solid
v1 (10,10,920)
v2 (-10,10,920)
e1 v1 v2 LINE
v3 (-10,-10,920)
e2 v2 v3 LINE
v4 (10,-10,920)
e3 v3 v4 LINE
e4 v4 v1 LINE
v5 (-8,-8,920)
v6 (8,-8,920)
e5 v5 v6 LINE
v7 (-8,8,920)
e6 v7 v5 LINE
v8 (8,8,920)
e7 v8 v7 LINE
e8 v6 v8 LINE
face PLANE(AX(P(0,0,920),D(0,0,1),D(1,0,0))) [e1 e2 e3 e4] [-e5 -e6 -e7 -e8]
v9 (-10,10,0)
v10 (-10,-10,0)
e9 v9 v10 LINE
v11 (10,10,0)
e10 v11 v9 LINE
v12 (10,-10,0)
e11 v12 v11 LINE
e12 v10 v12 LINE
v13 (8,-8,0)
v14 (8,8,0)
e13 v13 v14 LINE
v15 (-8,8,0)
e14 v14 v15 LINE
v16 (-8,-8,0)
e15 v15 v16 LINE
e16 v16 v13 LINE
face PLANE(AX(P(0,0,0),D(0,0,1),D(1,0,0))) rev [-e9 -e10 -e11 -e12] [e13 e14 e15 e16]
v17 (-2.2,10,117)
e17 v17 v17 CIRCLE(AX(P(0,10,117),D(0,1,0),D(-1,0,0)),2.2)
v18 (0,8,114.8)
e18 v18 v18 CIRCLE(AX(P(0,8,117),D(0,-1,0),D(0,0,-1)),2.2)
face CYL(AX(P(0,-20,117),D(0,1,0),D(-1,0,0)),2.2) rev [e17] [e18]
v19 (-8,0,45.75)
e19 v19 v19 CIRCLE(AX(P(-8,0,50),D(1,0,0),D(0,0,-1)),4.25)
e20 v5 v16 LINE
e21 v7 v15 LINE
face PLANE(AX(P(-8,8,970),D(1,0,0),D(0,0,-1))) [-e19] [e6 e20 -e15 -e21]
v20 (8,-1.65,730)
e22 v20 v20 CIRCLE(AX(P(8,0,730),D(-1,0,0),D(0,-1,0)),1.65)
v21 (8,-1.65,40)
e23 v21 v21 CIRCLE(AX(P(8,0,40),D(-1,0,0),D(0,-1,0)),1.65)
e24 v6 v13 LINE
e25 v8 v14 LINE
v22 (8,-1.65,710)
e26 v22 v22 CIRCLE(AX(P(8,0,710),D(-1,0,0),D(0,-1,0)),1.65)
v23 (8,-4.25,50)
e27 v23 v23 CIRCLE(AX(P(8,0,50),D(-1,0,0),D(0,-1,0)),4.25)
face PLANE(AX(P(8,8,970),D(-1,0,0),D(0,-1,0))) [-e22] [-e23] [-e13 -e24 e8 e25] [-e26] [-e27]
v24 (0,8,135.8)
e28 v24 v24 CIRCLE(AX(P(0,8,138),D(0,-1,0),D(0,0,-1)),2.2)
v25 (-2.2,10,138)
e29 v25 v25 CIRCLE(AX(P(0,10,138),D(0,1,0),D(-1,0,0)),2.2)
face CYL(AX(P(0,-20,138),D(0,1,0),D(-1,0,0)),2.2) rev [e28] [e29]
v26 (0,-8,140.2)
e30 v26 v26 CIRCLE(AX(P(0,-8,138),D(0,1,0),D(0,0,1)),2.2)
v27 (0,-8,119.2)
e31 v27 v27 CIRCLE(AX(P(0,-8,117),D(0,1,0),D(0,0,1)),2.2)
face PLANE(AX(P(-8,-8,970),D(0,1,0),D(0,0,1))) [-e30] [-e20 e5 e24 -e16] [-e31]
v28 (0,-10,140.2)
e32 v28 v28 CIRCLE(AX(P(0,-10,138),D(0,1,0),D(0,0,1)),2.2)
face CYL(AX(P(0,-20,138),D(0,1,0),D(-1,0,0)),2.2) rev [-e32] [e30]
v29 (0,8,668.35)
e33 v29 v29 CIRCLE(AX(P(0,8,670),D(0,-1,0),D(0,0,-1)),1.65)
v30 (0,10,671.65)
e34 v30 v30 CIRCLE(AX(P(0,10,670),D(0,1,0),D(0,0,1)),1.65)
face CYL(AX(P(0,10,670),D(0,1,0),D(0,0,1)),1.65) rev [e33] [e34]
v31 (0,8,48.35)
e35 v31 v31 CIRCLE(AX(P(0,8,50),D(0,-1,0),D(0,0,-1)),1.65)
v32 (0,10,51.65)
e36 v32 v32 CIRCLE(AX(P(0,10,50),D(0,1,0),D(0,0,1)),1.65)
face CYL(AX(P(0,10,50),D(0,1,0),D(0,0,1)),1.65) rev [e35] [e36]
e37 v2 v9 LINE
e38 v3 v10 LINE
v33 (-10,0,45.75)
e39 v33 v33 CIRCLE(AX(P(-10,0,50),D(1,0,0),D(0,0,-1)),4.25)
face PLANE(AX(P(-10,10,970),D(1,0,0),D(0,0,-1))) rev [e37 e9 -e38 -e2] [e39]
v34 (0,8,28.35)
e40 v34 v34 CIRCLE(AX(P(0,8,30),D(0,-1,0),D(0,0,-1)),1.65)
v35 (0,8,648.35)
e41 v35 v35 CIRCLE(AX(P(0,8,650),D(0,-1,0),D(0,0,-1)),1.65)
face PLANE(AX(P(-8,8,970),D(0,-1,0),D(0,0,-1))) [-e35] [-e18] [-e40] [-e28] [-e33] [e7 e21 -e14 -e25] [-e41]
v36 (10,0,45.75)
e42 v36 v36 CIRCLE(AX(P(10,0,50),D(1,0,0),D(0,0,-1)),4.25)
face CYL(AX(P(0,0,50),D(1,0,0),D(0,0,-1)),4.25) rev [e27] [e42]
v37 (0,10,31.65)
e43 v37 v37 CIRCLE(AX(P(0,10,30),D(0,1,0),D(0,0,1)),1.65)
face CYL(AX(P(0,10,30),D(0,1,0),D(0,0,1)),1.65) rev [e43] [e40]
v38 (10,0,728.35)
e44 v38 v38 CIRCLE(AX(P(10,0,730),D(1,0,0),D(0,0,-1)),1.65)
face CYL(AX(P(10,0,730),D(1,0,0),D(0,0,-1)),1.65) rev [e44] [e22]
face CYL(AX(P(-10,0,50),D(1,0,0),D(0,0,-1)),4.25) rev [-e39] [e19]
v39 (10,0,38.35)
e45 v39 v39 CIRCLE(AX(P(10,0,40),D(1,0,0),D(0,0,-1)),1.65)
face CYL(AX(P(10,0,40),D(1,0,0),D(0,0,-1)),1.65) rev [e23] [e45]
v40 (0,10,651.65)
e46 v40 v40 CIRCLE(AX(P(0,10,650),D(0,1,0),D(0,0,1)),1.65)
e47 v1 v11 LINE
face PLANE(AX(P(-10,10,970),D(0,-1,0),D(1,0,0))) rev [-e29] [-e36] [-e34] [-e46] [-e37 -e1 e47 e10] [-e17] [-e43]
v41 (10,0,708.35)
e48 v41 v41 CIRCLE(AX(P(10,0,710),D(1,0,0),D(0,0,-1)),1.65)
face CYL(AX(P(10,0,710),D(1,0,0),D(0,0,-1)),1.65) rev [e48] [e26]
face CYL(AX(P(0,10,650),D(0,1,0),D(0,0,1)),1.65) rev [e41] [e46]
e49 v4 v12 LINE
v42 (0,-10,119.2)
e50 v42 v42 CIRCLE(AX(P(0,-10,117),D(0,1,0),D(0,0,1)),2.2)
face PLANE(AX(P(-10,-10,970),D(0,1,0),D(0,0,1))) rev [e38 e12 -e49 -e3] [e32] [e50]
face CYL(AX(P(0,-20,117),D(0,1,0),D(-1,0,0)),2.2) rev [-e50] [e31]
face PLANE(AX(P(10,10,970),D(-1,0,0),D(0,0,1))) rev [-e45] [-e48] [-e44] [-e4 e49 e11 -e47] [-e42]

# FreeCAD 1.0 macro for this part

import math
import FreeCAD as App
import Part
import Sketcher

doc = App.newDocument("Part")
params = doc.addObject("Spreadsheet::Sheet", "Params")
for row, (alias, value) in enumerate([
    ("sketch1_width", "20 mm"),
    ("sketch1_width2", "16 mm"),
    ("pad1_length", "970 mm"),
    ("sketch2_diameter", "2 mm"),
    ("sketch2_diameter2", "8.5 mm"),
    ("pocket1_length", "10 mm"),
    ("sketch3_radius", "1 mm"),
    ("pocket2_length", "10 mm"),
    ("sketch4_diameter", "4.4 mm"),
    ("pocket3_length", "30 mm"),
    ("pocket4_length", "50 mm"),
    ("sketch6_diameter", "3.3 mm"),
    ("hole_diameter", "3.3 mm"),
    ("hole_depth", "11.5 mm"),
    ("sketch7_diameter", "2 mm"),
    ("pocket5_length", "10 mm"),
    ("sketch8_diameter", "3.3 mm"),
    ("hole2_diameter", "3.3 mm"),
    ("hole2_depth", "11.5 mm"),
    ("sketch9_diameter", "8.5 mm"),
    ("sketch10_diameter", "3.3 mm"),
    ("hole3_diameter", "3.3 mm"),
    ("hole3_depth", "11.5 mm"),
], start=1):
    params.set(f"A{row}", alias)
    params.set(f"B{row}", "=" + value)
    params.setAlias(f"B{row}", alias)

body = doc.addObject("PartDesign::Body", "Body")

# Sketch on XY plane
sketch1 = doc.addObject("Sketcher::SketchObject", "Sketch")
body.addObject(sketch1)
sketch1.AttachmentSupport = (doc.XY_Plane, [""])
sketch1.MapMode = "FlatFace"
sketch1.addGeometry([
    Part.LineSegment(App.Vector(-10, 10, 0), App.Vector(-10, -10, 0)),  # 0
    Part.LineSegment(App.Vector(-10, -10, 0), App.Vector(10, -10, 0)),  # 1
    Part.LineSegment(App.Vector(10, -10, 0), App.Vector(10, 10, 0)),  # 2
    Part.LineSegment(App.Vector(10, 10, 0), App.Vector(-10, 10, 0)),  # 3
    Part.LineSegment(App.Vector(8, -8, 0), App.Vector(-8, -8, 0)),  # 4
    Part.LineSegment(App.Vector(-8, -8, 0), App.Vector(-8, 8, 0)),  # 5
    Part.LineSegment(App.Vector(-8, 8, 0), App.Vector(8, 8, 0)),  # 6
    Part.LineSegment(App.Vector(8, 8, 0), App.Vector(8, -8, 0)),  # 7
], False)
sketch1.addConstraint([
    Sketcher.Constraint("Coincident", 0, 2, 1, 1),
    Sketcher.Constraint("Coincident", 1, 2, 2, 1),
    Sketcher.Constraint("Coincident", 2, 2, 3, 1),
    Sketcher.Constraint("Coincident", 3, 2, 0, 1),
    Sketcher.Constraint("Coincident", 4, 2, 5, 1),
    Sketcher.Constraint("Coincident", 5, 2, 6, 1),
    Sketcher.Constraint("Coincident", 6, 2, 7, 1),
    Sketcher.Constraint("Coincident", 7, 2, 4, 1),
    Sketcher.Constraint("Vertical", 0),
    Sketcher.Constraint("Horizontal", 1),
    Sketcher.Constraint("Vertical", 2),
    Sketcher.Constraint("Horizontal", 3),
    Sketcher.Constraint("Horizontal", 4),
    Sketcher.Constraint("Vertical", 5),
    Sketcher.Constraint("Horizontal", 6),
    Sketcher.Constraint("Vertical", 7),
    Sketcher.Constraint("Symmetric", 0, 2, 2, 2, -1, 1),
    Sketcher.Constraint("Symmetric", 4, 2, 6, 2, -1, 1),
    Sketcher.Constraint("Equal", 3, 0),
    Sketcher.Constraint("Equal", 6, 5),
    Sketcher.Constraint("DistanceX", 1, 1, 1, 2, 20.0),
    Sketcher.Constraint("DistanceX", 4, 2, 4, 1, 16.0),
])
sketch1.setExpression("Constraints[20]", "Params.sketch1_width")
sketch1.setExpression("Constraints[21]", "Params.sketch1_width2")
pad1 = doc.addObject("PartDesign::Pad", "Pad")
body.addObject(pad1)
pad1.Profile = sketch1
pad1.setExpression("Length", "Params.pad1_length")

# Sketch on YZ plane
sketch2 = doc.addObject("Sketcher::SketchObject", "Sketch001")
body.addObject(sketch2)
sketch2.AttachmentSupport = (doc.YZ_Plane, [""])
sketch2.MapMode = "FlatFace"
sketch2.AttachmentOffset = App.Placement(App.Vector(0, 0, 10), App.Rotation())
sketch2.addGeometry([
    Part.Circle(App.Vector(0, 710, 0), App.Vector(0, 0, 1), 1),
    Part.Circle(App.Vector(0, 50, 0), App.Vector(0, 0, 1), 4.2),
    Part.Circle(App.Vector(0, 40, 0), App.Vector(0, 0, 1), 1),
    Part.Circle(App.Vector(0, 730, 0), App.Vector(0, 0, 1), 1),
], False)
sketch2.addConstraint([
    Sketcher.Constraint("Equal", 0, 2),
    Sketcher.Constraint("Equal", 2, 3),
    Sketcher.Constraint("PointOnObject", 0, 3, -2),
    Sketcher.Constraint("PointOnObject", 1, 3, -2),
    Sketcher.Constraint("PointOnObject", 2, 3, -2),
    Sketcher.Constraint("PointOnObject", 3, 3, -2),
    Sketcher.Constraint("Diameter", 0, 2.0),
    Sketcher.Constraint("Diameter", 1, 8.5),
    Sketcher.Constraint("DistanceY", -1, 1, 0, 3, 710.0),
    Sketcher.Constraint("DistanceY", -1, 1, 1, 3, 50.0),
    Sketcher.Constraint("DistanceY", -1, 1, 2, 3, 40.0),
    Sketcher.Constraint("DistanceY", -1, 1, 3, 3, 730.0),
])
sketch2.setExpression("Constraints[6]", "Params.sketch2_diameter")
sketch2.setExpression("Constraints[7]", "Params.sketch2_diameter2")
pocket1 = doc.addObject("PartDesign::Pocket", "Pocket")
body.addObject(pocket1)
pocket1.Profile = sketch2
pocket1.setExpression("Length", "Params.pocket1_length")

# Sketch on XZ plane
sketch3 = doc.addObject("Sketcher::SketchObject", "Sketch002")
body.addObject(sketch3)
sketch3.AttachmentSupport = (doc.XZ_Plane, [""])
sketch3.MapMode = "FlatFace"
sketch3.AttachmentOffset = App.Placement(App.Vector(0, 0, -10), App.Rotation())
sketch3.addGeometry([
    Part.ArcOfCircle(Part.Circle(App.Vector(0, 650, 0), App.Vector(0, 0, 1), 1), math.radians(90), math.radians(270)),  # 0
    Part.ArcOfCircle(Part.Circle(App.Vector(0, 650, 0), App.Vector(0, 0, 1), 1), math.radians(0), math.radians(90)),  # 1
    Part.ArcOfCircle(Part.Circle(App.Vector(0, 650, 0), App.Vector(0, 0, 1), 1), math.radians(-90), math.radians(0)),  # 2
    Part.ArcOfCircle(Part.Circle(App.Vector(0, 670, 0), App.Vector(0, 0, 1), 1), math.radians(90), math.radians(270)),  # 3
    Part.ArcOfCircle(Part.Circle(App.Vector(0, 670, 0), App.Vector(0, 0, 1), 1), math.radians(0), math.radians(90)),  # 4
    Part.ArcOfCircle(Part.Circle(App.Vector(0, 670, 0), App.Vector(0, 0, 1), 1), math.radians(-90), math.radians(0)),  # 5
], False)
sketch3.addConstraint([
    Sketcher.Constraint("Tangent", 0, 1, 1, 2),
    Sketcher.Constraint("Tangent", 1, 1, 2, 2),
    Sketcher.Constraint("Tangent", 2, 1, 0, 2),
    Sketcher.Constraint("Tangent", 3, 1, 4, 2),
    Sketcher.Constraint("Tangent", 4, 1, 5, 2),
    Sketcher.Constraint("Tangent", 5, 1, 3, 2),
    Sketcher.Constraint("Equal", 2, 3),
    Sketcher.Constraint("PointOnObject", 0, 3, -2),
    Sketcher.Constraint("PointOnObject", 3, 3, -2),
    Sketcher.Constraint("PointOnObject", 0, 1, -2),
    Sketcher.Constraint("PointOnObject", 2, 1, -2),
    Sketcher.Constraint("PointOnObject", 3, 1, -2),
    Sketcher.Constraint("PointOnObject", 5, 1, -2),
    Sketcher.Constraint("Horizontal", 2, 3, 1, 1),
    Sketcher.Constraint("Horizontal", 5, 3, 4, 1),
    Sketcher.Constraint("Radius", 0, 1.0),
    Sketcher.Constraint("DistanceY", -1, 1, 0, 3, 650.0),
    Sketcher.Constraint("DistanceY", -1, 1, 3, 3, 670.0),
])
sketch3.setExpression("Constraints[15]", "Params.sketch3_radius")
pocket2 = doc.addObject("PartDesign::Pocket", "Pocket001")
body.addObject(pocket2)
pocket2.Profile = sketch3
pocket2.setExpression("Length", "Params.pocket2_length")
pocket2.Reversed = True

# Sketch on XZ plane
sketch4 = doc.addObject("Sketcher::SketchObject", "Sketch003")
body.addObject(sketch4)
sketch4.AttachmentSupport = (doc.XZ_Plane, [""])
sketch4.MapMode = "FlatFace"
sketch4.AttachmentOffset = App.Placement(App.Vector(0, 0, -10), App.Rotation())
sketch4.addGeometry([
    Part.Circle(App.Vector(0, 117, 0), App.Vector(0, 0, 1), 2.2),
    Part.Circle(App.Vector(0, 138, 0), App.Vector(0, 0, 1), 2.2),
], False)
sketch4.addConstraint([
    Sketcher.Constraint("Equal", 0, 1),
    Sketcher.Constraint("PointOnObject", 0, 3, -2),
    Sketcher.Constraint("PointOnObject", 1, 3, -2),
    Sketcher.Constraint("Diameter", 0, 4.4),
    Sketcher.Constraint("DistanceY", -1, 1, 0, 3, 117.0),
    Sketcher.Constraint("DistanceY", -1, 1, 1, 3, 138.0),
])
sketch4.setExpression("Constraints[3]", "Params.sketch4_diameter")
pocket3 = doc.addObject("PartDesign::Pocket", "Pocket002")
body.addObject(pocket3)
pocket3.Profile = sketch4
pocket3.setExpression("Length", "Params.pocket3_length")
pocket3.Reversed = True

# Sketch on XY plane
sketch5 = doc.addObject("Sketcher::SketchObject", "Sketch004")
body.addObject(sketch5)
sketch5.AttachmentSupport = (doc.XY_Plane, [""])
sketch5.MapMode = "FlatFace"
sketch5.AttachmentOffset = App.Placement(App.Vector(0, 0, 970), App.Rotation())
sketch5.addGeometry([
    Part.LineSegment(App.Vector(-14, 11, 0), App.Vector(-14, -11, 0)),
    Part.LineSegment(App.Vector(-14, -11, 0), App.Vector(14, -11, 0)),
    Part.LineSegment(App.Vector(14, -11, 0), App.Vector(14, 11, 0)),
    Part.LineSegment(App.Vector(14, 11, 0), App.Vector(-14, 11, 0)),
], False)
sketch5.addConstraint([
    Sketcher.Constraint("Coincident", 0, 2, 1, 1),
    Sketcher.Constraint("Coincident", 1, 2, 2, 1),
    Sketcher.Constraint("Coincident", 2, 2, 3, 1),
    Sketcher.Constraint("Coincident", 3, 2, 0, 1),
    Sketcher.Constraint("Vertical", 0),
    Sketcher.Constraint("Horizontal", 1),
    Sketcher.Constraint("Vertical", 2),
    Sketcher.Constraint("Horizontal", 3),
    Sketcher.Constraint("Symmetric", 0, 2, 2, 2, -1, 1),
    Sketcher.Constraint("DistanceX", 1, 1, 1, 2, 27.825743),
    Sketcher.Constraint("DistanceY", 0, 2, 0, 1, 21.841712),
])
pocket4 = doc.addObject("PartDesign::Pocket", "Pocket003")
body.addObject(pocket4)
pocket4.Profile = sketch5
pocket4.setExpression("Length", "Params.pocket4_length")

# Sketch on XZ plane
sketch6 = doc.addObject("Sketcher::SketchObject", "Sketch005")
body.addObject(sketch6)
sketch6.AttachmentSupport = (doc.XZ_Plane, [""])
sketch6.MapMode = "FlatFace"
sketch6.AttachmentOffset = App.Placement(App.Vector(0, 0, -10), App.Rotation())
sketch6.addGeometry([
    Part.Circle(App.Vector(0, 650, 0), App.Vector(0, 0, 1), 1.6),
    Part.Circle(App.Vector(0, 670, 0), App.Vector(0, 0, 1), 1.6),
], False)
sketch6.addConstraint([
    Sketcher.Constraint("Equal", 0, 1),
    Sketcher.Constraint("PointOnObject", 0, 3, -2),
    Sketcher.Constraint("PointOnObject", 1, 3, -2),
    Sketcher.Constraint("Diameter", 0, 3.3),
    Sketcher.Constraint("DistanceY", -1, 1, 0, 3, 650.0),
    Sketcher.Constraint("DistanceY", -1, 1, 1, 3, 670.0),
])
sketch6.setExpression("Constraints[3]", "Params.sketch6_diameter")
doc.recompute()
hole = doc.addObject("PartDesign::Hole", "Hole")
body.addObject(hole)
hole.Profile = sketch6
hole.ThreadType = "None"
hole.setExpression("Diameter", "Params.hole_diameter")
hole.DepthType = "Dimension"
hole.setExpression("Depth", "Params.hole_depth")
hole.DrillPoint = "Angled"
hole.DrillPointAngle = 118
hole.Reversed = True

# Sketch on XZ plane
sketch7 = doc.addObject("Sketcher::SketchObject", "Sketch006")
body.addObject(sketch7)
sketch7.AttachmentSupport = (doc.XZ_Plane, [""])
sketch7.MapMode = "FlatFace"
sketch7.AttachmentOffset = App.Placement(App.Vector(0, 0, -10), App.Rotation())
sketch7.addGeometry([
    Part.Circle(App.Vector(0, 30, 0), App.Vector(0, 0, 1), 1),
    Part.Circle(App.Vector(0, 50, 0), App.Vector(0, 0, 1), 1),
], False)
sketch7.addConstraint([
    Sketcher.Constraint("Equal", 0, 1),
    Sketcher.Constraint("PointOnObject", 0, 3, -2),
    Sketcher.Constraint("PointOnObject", 1, 3, -2),
    Sketcher.Constraint("Diameter", 0, 2.0),
    Sketcher.Constraint("DistanceY", -1, 1, 0, 3, 30.0),
    Sketcher.Constraint("DistanceY", -1, 1, 1, 3, 50.0),
])
sketch7.setExpression("Constraints[3]", "Params.sketch7_diameter")
pocket5 = doc.addObject("PartDesign::Pocket", "Pocket004")
body.addObject(pocket5)
pocket5.Profile = sketch7
pocket5.setExpression("Length", "Params.pocket5_length")
pocket5.Reversed = True

# Sketch on XZ plane
sketch8 = doc.addObject("Sketcher::SketchObject", "Sketch007")
body.addObject(sketch8)
sketch8.AttachmentSupport = (doc.XZ_Plane, [""])
sketch8.MapMode = "FlatFace"
sketch8.AttachmentOffset = App.Placement(App.Vector(0, 0, -10), App.Rotation())
sketch8.addGeometry([
    Part.Circle(App.Vector(0, 30, 0), App.Vector(0, 0, 1), 1.6),
    Part.Circle(App.Vector(0, 50, 0), App.Vector(0, 0, 1), 1.6),
], False)
sketch8.addConstraint([
    Sketcher.Constraint("Equal", 0, 1),
    Sketcher.Constraint("PointOnObject", 0, 3, -2),
    Sketcher.Constraint("PointOnObject", 1, 3, -2),
    Sketcher.Constraint("Diameter", 0, 3.3),
    Sketcher.Constraint("DistanceY", -1, 1, 0, 3, 30.0),
    Sketcher.Constraint("DistanceY", -1, 1, 1, 3, 50.0),
])
sketch8.setExpression("Constraints[3]", "Params.sketch8_diameter")
doc.recompute()
hole2 = doc.addObject("PartDesign::Hole", "Hole001")
body.addObject(hole2)
hole2.Profile = sketch8
hole2.ThreadType = "None"
hole2.setExpression("Diameter", "Params.hole2_diameter")
hole2.DepthType = "Dimension"
hole2.setExpression("Depth", "Params.hole2_depth")
hole2.DrillPoint = "Angled"
hole2.DrillPointAngle = 118
hole2.Reversed = True

# Sketch on YZ plane
sketch9 = doc.addObject("Sketcher::SketchObject", "Sketch008")
body.addObject(sketch9)
sketch9.AttachmentSupport = (doc.YZ_Plane, [""])
sketch9.MapMode = "FlatFace"
sketch9.AttachmentOffset = App.Placement(App.Vector(0, 0, 10), App.Rotation())
sketch9.addGeometry(Part.Circle(App.Vector(0, 50, 0), App.Vector(0, 0, 1), 4.2), False)
sketch9.addConstraint([
    Sketcher.Constraint("PointOnObject", 0, 3, -2),
    Sketcher.Constraint("Diameter", 0, 8.5),
    Sketcher.Constraint("DistanceY", -1, 1, 0, 3, 50.0),
])
sketch9.setExpression("Constraints[1]", "Params.sketch9_diameter")
pocket6 = doc.addObject("PartDesign::Pocket", "Pocket005")
body.addObject(pocket6)
pocket6.Profile = sketch9
pocket6.Type = "ThroughAll"

# Sketch on YZ plane
sketch10 = doc.addObject("Sketcher::SketchObject", "Sketch009")
body.addObject(sketch10)
sketch10.AttachmentSupport = (doc.YZ_Plane, [""])
sketch10.MapMode = "FlatFace"
sketch10.AttachmentOffset = App.Placement(App.Vector(0, 0, 10), App.Rotation())
sketch10.addGeometry([
    Part.Circle(App.Vector(0, 40, 0), App.Vector(0, 0, 1), 1.6),
    Part.Circle(App.Vector(0, 710, 0), App.Vector(0, 0, 1), 1.6),
    Part.Circle(App.Vector(0, 730, 0), App.Vector(0, 0, 1), 1.6),
], False)
sketch10.addConstraint([
    Sketcher.Constraint("Equal", 0, 1),
    Sketcher.Constraint("Equal", 1, 2),
    Sketcher.Constraint("PointOnObject", 0, 3, -2),
    Sketcher.Constraint("PointOnObject", 1, 3, -2),
    Sketcher.Constraint("PointOnObject", 2, 3, -2),
    Sketcher.Constraint("Diameter", 0, 3.3),
    Sketcher.Constraint("DistanceY", -1, 1, 0, 3, 40.0),
    Sketcher.Constraint("DistanceY", -1, 1, 1, 3, 710.0),
    Sketcher.Constraint("DistanceY", -1, 1, 2, 3, 730.0),
])
sketch10.setExpression("Constraints[5]", "Params.sketch10_diameter")
doc.recompute()
hole3 = doc.addObject("PartDesign::Hole", "Hole002")
body.addObject(hole3)
hole3.Profile = sketch10
hole3.ThreadType = "None"
hole3.setExpression("Diameter", "Params.hole3_diameter")
hole3.DepthType = "Dimension"
hole3.setExpression("Depth", "Params.hole3_depth")
hole3.DrillPoint = "Angled"
hole3.DrillPointAngle = 118

doc.recompute()
